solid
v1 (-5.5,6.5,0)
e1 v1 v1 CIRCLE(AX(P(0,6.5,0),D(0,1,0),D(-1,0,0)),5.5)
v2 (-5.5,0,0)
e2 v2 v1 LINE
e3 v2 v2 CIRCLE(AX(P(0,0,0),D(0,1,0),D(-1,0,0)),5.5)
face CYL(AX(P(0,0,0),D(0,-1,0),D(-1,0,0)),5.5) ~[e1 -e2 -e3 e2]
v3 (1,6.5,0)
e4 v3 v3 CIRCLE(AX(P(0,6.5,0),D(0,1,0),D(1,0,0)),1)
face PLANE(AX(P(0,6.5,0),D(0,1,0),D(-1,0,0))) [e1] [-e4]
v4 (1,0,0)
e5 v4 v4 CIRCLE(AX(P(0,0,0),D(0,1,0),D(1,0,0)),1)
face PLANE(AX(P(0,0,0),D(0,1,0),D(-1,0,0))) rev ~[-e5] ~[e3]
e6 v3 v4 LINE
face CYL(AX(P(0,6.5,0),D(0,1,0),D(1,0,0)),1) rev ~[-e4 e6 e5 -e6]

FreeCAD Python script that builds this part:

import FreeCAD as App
import Part
import Sketcher
from FreeCAD import Vector

doc = App.newDocument("Part")
body = doc.addObject("PartDesign::Body", "Body")

# Sketch on XZ plane
sketch1 = body.newObject("Sketcher::SketchObject", "Sketch")
sketch1.AttachmentSupport = (doc.getObject("XZ_Plane"), [""])
sketch1.MapMode = "FlatFace"
sketch1.addGeometry(Part.Circle(Vector(0, 0, 0), Vector(0, 0, 1), 5.5), False)
sketch1.addConstraint([
    Sketcher.Constraint("Coincident", 0, 3, -1, 1),
    Sketcher.Constraint("Diameter", 0, 11.0),
])
pad1 = body.newObject("PartDesign::Pad", "Pad")
pad1.Profile = sketch1
pad1.Length = 6.5
pad1.Reversed = True

# Sketch on XZ plane
sketch2 = body.newObject("Sketcher::SketchObject", "Sketch001")
sketch2.AttachmentSupport = (doc.getObject("XZ_Plane"), [""])
sketch2.MapMode = "FlatFace"
sketch2.AttachmentOffset = App.Placement(Vector(0, 0, -6.5), App.Rotation())
sketch2.addGeometry(Part.Circle(Vector(0, 0, 0), Vector(0, 0, 1), 1), False)
sketch2.addConstraint([
    Sketcher.Constraint("Coincident", 0, 3, -1, 1),
    Sketcher.Constraint("Diameter", 0, 2.0),
])
pocket1 = body.newObject("PartDesign::Pocket", "Pocket")
pocket1.Profile = sketch2
pocket1.Length = 6.5
pocket1.Reversed = True

doc.recompute()
